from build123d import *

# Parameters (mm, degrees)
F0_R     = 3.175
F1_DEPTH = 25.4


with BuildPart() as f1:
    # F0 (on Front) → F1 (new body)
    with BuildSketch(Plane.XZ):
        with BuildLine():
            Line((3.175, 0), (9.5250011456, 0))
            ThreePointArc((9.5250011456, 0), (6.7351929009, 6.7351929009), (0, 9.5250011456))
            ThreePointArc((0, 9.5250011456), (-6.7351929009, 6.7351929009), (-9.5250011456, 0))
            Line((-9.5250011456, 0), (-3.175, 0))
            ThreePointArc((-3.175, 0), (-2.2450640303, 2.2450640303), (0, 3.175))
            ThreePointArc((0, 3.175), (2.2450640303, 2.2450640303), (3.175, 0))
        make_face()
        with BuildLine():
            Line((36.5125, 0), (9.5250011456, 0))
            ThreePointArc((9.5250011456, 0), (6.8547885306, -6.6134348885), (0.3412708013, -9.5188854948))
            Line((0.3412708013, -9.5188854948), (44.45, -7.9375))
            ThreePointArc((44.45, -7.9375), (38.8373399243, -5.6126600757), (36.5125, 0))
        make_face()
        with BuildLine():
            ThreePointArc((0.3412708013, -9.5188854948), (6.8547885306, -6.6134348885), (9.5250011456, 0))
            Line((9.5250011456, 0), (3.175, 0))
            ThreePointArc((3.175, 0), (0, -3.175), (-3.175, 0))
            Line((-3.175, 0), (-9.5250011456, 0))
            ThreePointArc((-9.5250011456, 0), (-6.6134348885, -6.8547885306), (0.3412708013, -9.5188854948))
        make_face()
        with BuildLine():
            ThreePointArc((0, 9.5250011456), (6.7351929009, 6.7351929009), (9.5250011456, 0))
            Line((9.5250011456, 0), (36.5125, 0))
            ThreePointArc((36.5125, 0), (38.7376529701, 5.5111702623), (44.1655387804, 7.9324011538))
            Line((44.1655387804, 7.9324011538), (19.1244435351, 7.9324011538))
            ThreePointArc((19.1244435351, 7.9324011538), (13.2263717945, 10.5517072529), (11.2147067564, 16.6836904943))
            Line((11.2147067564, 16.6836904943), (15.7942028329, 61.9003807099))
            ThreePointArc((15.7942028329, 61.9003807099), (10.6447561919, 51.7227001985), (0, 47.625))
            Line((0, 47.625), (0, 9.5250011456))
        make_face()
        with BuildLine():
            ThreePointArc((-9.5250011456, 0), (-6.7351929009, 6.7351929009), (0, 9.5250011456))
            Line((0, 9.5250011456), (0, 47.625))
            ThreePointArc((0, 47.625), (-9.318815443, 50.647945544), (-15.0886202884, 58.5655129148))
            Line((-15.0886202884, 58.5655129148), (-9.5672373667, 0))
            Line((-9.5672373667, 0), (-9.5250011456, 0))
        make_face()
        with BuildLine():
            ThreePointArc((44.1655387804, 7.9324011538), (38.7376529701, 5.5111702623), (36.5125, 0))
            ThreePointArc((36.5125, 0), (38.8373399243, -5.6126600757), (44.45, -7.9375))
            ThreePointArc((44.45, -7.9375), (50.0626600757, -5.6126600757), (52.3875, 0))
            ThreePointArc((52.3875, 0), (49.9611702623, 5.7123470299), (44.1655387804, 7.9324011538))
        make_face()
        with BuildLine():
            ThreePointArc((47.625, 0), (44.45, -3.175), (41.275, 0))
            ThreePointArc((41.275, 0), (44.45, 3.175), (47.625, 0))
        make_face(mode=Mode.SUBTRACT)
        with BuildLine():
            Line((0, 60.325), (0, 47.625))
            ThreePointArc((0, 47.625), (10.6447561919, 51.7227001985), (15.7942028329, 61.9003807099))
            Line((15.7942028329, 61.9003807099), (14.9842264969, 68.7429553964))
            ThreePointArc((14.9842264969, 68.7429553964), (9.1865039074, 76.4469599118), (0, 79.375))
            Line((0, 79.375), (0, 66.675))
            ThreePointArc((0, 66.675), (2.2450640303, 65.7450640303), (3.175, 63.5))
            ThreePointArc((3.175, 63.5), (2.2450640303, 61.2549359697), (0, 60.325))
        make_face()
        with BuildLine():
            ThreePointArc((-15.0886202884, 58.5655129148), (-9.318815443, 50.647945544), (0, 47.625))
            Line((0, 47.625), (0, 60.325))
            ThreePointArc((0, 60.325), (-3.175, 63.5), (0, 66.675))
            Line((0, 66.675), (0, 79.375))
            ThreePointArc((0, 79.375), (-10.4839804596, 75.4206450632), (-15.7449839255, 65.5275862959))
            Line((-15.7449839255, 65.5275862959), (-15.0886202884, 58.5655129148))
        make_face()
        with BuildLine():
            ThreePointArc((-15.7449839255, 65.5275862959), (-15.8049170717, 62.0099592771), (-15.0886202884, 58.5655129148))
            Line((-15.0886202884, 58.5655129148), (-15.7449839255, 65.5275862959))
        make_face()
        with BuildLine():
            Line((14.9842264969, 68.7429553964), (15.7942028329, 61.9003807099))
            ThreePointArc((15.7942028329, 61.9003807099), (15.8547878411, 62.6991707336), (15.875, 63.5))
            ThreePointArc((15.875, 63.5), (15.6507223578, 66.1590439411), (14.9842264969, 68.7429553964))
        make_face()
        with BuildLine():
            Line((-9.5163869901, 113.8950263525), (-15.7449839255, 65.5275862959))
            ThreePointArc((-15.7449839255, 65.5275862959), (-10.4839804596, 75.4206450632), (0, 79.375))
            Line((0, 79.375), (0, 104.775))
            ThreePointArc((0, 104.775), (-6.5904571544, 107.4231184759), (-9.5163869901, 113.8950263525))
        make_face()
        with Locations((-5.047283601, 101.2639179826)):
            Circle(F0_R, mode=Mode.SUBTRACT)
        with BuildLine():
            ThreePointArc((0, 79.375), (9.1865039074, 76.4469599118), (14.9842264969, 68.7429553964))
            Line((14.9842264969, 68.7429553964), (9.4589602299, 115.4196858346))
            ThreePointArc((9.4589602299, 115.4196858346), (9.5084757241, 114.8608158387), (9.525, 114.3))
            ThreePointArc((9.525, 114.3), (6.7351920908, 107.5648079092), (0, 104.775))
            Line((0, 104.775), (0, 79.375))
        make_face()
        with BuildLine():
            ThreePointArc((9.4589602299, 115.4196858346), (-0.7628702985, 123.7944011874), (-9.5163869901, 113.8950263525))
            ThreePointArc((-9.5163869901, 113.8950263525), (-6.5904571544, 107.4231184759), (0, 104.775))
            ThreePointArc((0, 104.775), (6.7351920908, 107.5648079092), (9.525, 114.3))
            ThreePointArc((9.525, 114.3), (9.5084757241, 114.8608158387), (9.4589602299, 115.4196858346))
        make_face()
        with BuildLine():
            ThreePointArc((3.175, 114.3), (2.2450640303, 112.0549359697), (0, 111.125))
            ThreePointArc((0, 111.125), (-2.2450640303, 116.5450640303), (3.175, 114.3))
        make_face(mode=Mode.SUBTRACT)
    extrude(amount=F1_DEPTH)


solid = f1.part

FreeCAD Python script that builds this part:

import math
import FreeCAD as App
import Part
import Sketcher

V = App.Vector
Q = App.Units.Quantity

doc = App.newDocument("Part")
body = doc.addObject("PartDesign::Body", "Body")

# Sketch on XZ plane
sketch1 = doc.addObject("Sketcher::SketchObject", "Sketch")
body.addObject(sketch1)
sketch1.AttachmentSupport = (doc.XZ_Plane, [""])
sketch1.MapMode = "FlatFace"
sketch1.addGeometry([
    Part.ArcOfCircle(Part.Circle(V(0, 0, 0), V(0, 0, 1), 9.525001), math.radians(180), math.radians(272.053287)),  # 0
    Part.LineSegment(V(0.341271, -9.518885, 0), V(44.45, -7.9375, 0)),  # 1
    Part.ArcOfCircle(Part.Circle(V(44.45, 0, 0), V(0, 0, 1), 7.9375), math.radians(-90), math.radians(0)),  # 2
    Part.ArcOfCircle(Part.Circle(V(44.45, 0, 0), V(0, 0, 1), 7.9375), math.radians(0), math.radians(92.053785)),  # 3
    Part.LineSegment(V(44.165539, 7.932401, 0), V(19.124444, 7.932401, 0)),  # 4
    Part.ArcOfCircle(Part.Circle(V(19.124444, 15.882601, 0), V(0, 0, 1), 7.9502), math.radians(174.216867), math.radians(270)),  # 5
    Part.LineSegment(V(11.214707, 16.68369, 0), V(15.794203, 61.900381, 0)),  # 6
    Part.ArcOfCircle(Part.Circle(V(0, 63.5, 0), V(0, 0, 1), 15.875), math.radians(-5.783133), math.radians(0)),  # 7
    Part.ArcOfCircle(Part.Circle(V(0, 63.5, 0), V(0, 0, 1), 15.875), math.radians(0), math.radians(19.284855)),  # 8
    Part.LineSegment(V(14.984226, 68.742955, 0), V(9.45896, 115.419686, 0)),  # 9
    Part.ArcOfCircle(Part.Circle(V(0, 114.3, 0), V(0, 0, 1), 9.525), math.radians(6.750861), math.radians(182.436775)),  # 10
    Part.LineSegment(V(-9.516387, 113.895026, 0), V(-15.744984, 65.527586, 0)),  # 11
    Part.ArcOfCircle(Part.Circle(V(0, 63.5, 0), V(0, 0, 1), 15.875), math.radians(172.662026), math.radians(198.109488)),  # 12
    Part.LineSegment(V(-15.08862, 58.565513, 0), V(-9.567237, 0, 0)),  # 13
    Part.LineSegment(V(-9.567237, 0, 0), V(-9.525001, 0, 0)),  # 14
    Part.ArcOfCircle(Part.Circle(V(0, 0, 0), V(0, 0, 1), 3.175), math.radians(90), math.radians(180)),  # 15
    Part.ArcOfCircle(Part.Circle(V(0, 0, 0), V(0, 0, 1), 3.175), math.radians(0), math.radians(90)),  # 16
    Part.ArcOfCircle(Part.Circle(V(0, 0, 0), V(0, 0, 1), 3.175), math.radians(180), math.radians(360)),  # 17
    Part.Circle(V(44.45, 0, 0), V(0, 0, 1), 3.175),  # 18
    Part.ArcOfCircle(Part.Circle(V(0, 63.5, 0), V(0, 0, 1), 3.175), math.radians(0), math.radians(90)),  # 19
    Part.ArcOfCircle(Part.Circle(V(0, 63.5, 0), V(0, 0, 1), 3.175), math.radians(-90), math.radians(0)),  # 20
    Part.ArcOfCircle(Part.Circle(V(0, 63.5, 0), V(0, 0, 1), 3.175), math.radians(90), math.radians(270)),  # 21
    Part.Circle(V(-5.047284, 101.263918, 0), V(0, 0, 1), 3.175),  # 22
    Part.ArcOfCircle(Part.Circle(V(0, 114.3, 0), V(0, 0, 1), 3.175), math.radians(0), math.radians(270)),  # 23
    Part.ArcOfCircle(Part.Circle(V(0, 114.3, 0), V(0, 0, 1), 3.175), math.radians(-90), math.radians(0)),  # 24
], False)
sketch1.addConstraint([
    Sketcher.Constraint("Coincident", 0, 2, 1, 1),
    Sketcher.Constraint("Coincident", 1, 2, 2, 1),
    Sketcher.Constraint("Coincident", 2, 2, 3, 1),
    Sketcher.Constraint("Coincident", 3, 2, 4, 1),
    Sketcher.Constraint("Coincident", 4, 2, 5, 2),
    Sketcher.Constraint("Coincident", 5, 1, 6, 1),
    Sketcher.Constraint("Coincident", 6, 2, 7, 1),
    Sketcher.Constraint("Coincident", 7, 2, 8, 1),
    Sketcher.Constraint("Coincident", 8, 2, 9, 1),
    Sketcher.Constraint("Coincident", 9, 2, 10, 1),
    Sketcher.Constraint("Coincident", 10, 2, 11, 1),
    Sketcher.Constraint("Coincident", 11, 2, 12, 1),
    Sketcher.Constraint("Coincident", 12, 2, 13, 1),
    Sketcher.Constraint("Coincident", 13, 2, 14, 1),
    Sketcher.Constraint("Coincident", 14, 2, 0, 1),
    Sketcher.Constraint("Coincident", 15, 1, 16, 2),
    Sketcher.Constraint("Coincident", 16, 1, 17, 2),
    Sketcher.Constraint("Coincident", 17, 1, 15, 2),
    Sketcher.Constraint("Coincident", 19, 1, 20, 2),
    Sketcher.Constraint("Coincident", 20, 1, 21, 2),
    Sketcher.Constraint("Coincident", 21, 1, 19, 2),
    Sketcher.Constraint("Coincident", 23, 1, 24, 2),
    Sketcher.Constraint("Coincident", 24, 1, 23, 2),
    Sketcher.Constraint("Horizontal", 4),
    Sketcher.Constraint("Horizontal", 14),
    Sketcher.Constraint("Coincident", 0, 3, -1, 1),
    Sketcher.Constraint("Coincident", 15, 3, -1, 1),
    Sketcher.Constraint("Coincident", 16, 3, -1, 1),
    Sketcher.Constraint("Coincident", 3, 3, 2, 3),
    Sketcher.Constraint("Coincident", 8, 3, 7, 3),
    Sketcher.Constraint("Coincident", 12, 3, 7, 3),
    Sketcher.Constraint("Coincident", 18, 3, 2, 3),
    Sketcher.Constraint("Coincident", 19, 3, 7, 3),
    Sketcher.Constraint("Coincident", 20, 3, 7, 3),
    Sketcher.Constraint("Coincident", 23, 3, 10, 3),
    Sketcher.Constraint("PointOnObject", 2, 3, -1),
    Sketcher.Constraint("PointOnObject", 7, 3, -2),
    Sketcher.Constraint("PointOnObject", 10, 3, -2),
    Sketcher.Constraint("PointOnObject", 21, 3, -2),
    Sketcher.Constraint("PointOnObject", 24, 3, -2),
    Sketcher.Constraint("PointOnObject", 2, 2, -1),
    Sketcher.Constraint("PointOnObject", 13, 2, -1),
    Sketcher.Constraint("PointOnObject", 15, 1, -2),
    Sketcher.Constraint("PointOnObject", 16, 1, -1),
    Sketcher.Constraint("PointOnObject", 17, 1, -1),
    Sketcher.Constraint("PointOnObject", 20, 1, -2),
    Sketcher.Constraint("PointOnObject", 21, 1, -2),
    Sketcher.Constraint("PointOnObject", 24, 1, -2),
    Sketcher.Constraint("Diameter", 18, Q("0.25 in")),
    Sketcher.Constraint("Diameter", 22, Q("0.25 in")),
    Sketcher.Constraint("Radius", 0, Q("0.375 in")),
    Sketcher.Constraint("Radius", 2, Q("0.3125 in")),
    Sketcher.Constraint("Radius", 5, Q("0.313 in")),
    Sketcher.Constraint("Radius", 7, Q("0.625 in")),
    Sketcher.Constraint("Radius", 10, Q("0.375 in")),
    Sketcher.Constraint("Radius", 12, Q("0.625 in")),
    Sketcher.Constraint("Radius", 15, Q("0.125 in")),
    Sketcher.Constraint("Radius", 19, Q("0.125 in")),
    Sketcher.Constraint("Radius", 23, Q("0.125 in")),
    Sketcher.Constraint("DistanceY", 8, 3, 10, 3, Q("2 in")),
    Sketcher.Constraint("DistanceY", -1, 1, 7, 3, Q("2.5 in")),
    Sketcher.Constraint("DistanceY", -1, 1, 7, 2, Q("2.5 in")),
    Sketcher.Constraint("DistanceY", -1, 1, 19, 1, Q("2.5 in")),
    Sketcher.Constraint("DistanceY", -1, 1, 23, 1, Q("4.5 in")),
    Sketcher.Constraint("DistanceX", -1, 1, 2, 3, Q("1.75 in")),
    Sketcher.Constraint("DistanceX", -1, 1, 1, 2, Q("1.75 in")),
    Sketcher.Constraint("DistanceY", 17, 3, 15, 1, Q("0.125 in")),
    Sketcher.Constraint("DistanceX", -1, 1, 9, 2, Q("0.3724 in")),
    Sketcher.Constraint("Distance", 6, Q("45.448002 mm")),
    Sketcher.Constraint("DistanceY", -1, 1, 5, 3, Q("15.882601 mm")),
    Sketcher.Constraint("Distance", 11, Q("48.76684 mm")),
    Sketcher.Constraint("DistanceX", 4, 2, 4, 1, Q("25.041095 mm")),
    Sketcher.Constraint("DistanceX", 14, 1, 14, 2, Q("0.042236 mm")),
    Sketcher.Constraint("DistanceX", -1, 1, 0, 2, Q("0.341271 mm")),
    Sketcher.Constraint("DistanceY", -1, 1, 5, 1, Q("16.68369 mm")),
    Sketcher.Constraint("DistanceY", -1, 1, 6, 2, Q("61.900381 mm")),
    Sketcher.Constraint("DistanceX", 12, 2, -1, 1, Q("15.08862 mm")),
    Sketcher.Constraint("DistanceY", 8, 2, 9, 2, Q("46.67673 mm")),
    Sketcher.Constraint("DistanceY", 22, 3, 10, 2, Q("12.631108 mm")),
    Sketcher.Constraint("DistanceY", 10, 2, 9, 2, Q("1.524659 mm")),
    Sketcher.Constraint("DistanceX", 22, 3, -1, 1, Q("5.047284 mm")),
])
pad1 = doc.addObject("PartDesign::Pad", "Pad")
body.addObject(pad1)
pad1.Profile = sketch1
pad1.Length = Q("1 in")

doc.recompute()
